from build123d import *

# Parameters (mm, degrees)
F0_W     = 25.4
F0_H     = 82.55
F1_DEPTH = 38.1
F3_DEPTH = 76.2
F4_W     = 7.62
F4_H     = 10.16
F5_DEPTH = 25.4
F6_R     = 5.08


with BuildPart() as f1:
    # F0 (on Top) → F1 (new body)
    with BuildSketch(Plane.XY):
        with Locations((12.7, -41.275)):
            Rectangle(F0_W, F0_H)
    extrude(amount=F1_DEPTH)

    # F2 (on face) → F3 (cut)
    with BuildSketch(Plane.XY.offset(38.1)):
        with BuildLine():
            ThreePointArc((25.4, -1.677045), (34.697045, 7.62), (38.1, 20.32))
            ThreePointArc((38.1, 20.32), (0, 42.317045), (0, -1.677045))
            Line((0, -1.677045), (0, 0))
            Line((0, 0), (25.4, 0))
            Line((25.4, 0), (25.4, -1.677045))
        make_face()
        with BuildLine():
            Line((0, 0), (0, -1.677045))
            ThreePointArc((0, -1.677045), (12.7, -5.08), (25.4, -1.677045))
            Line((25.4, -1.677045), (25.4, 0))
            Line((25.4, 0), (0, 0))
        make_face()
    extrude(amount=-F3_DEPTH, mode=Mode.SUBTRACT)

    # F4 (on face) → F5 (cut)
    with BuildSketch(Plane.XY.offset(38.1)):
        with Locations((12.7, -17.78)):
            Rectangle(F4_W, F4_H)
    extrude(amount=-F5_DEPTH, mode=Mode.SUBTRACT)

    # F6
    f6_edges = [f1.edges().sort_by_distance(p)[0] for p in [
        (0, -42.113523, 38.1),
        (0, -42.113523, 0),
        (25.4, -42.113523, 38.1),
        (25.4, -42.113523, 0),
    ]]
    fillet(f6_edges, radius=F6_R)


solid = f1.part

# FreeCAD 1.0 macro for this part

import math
import FreeCAD as App
import Part
import Sketcher
Q = App.Units.Quantity


def edges_at(feature, points):
    """Names of the edges that pass closest to the given points."""
    edges = feature.Shape.Edges
    near = lambda p: min(range(len(edges)), key=lambda i: edges[i].distToShape(Part.Vertex(*p))[0])
    return sorted({f"Edge{near(p) + 1}" for p in points})

doc = App.newDocument("Part")
body = doc.addObject("PartDesign::Body", "Body")

# Sketch on XY plane
sketch1 = body.newObject("Sketcher::SketchObject", "Sketch")
sketch1.AttachmentSupport = (doc.getObject("XY_Plane"), [""])
sketch1.MapMode = "FlatFace"
sketch1.addGeometry([
    Part.LineSegment(App.Vector(0, 0, 0), App.Vector(0, -82.55, 0)),
    Part.LineSegment(App.Vector(0, -82.55, 0), App.Vector(25.4, -82.55, 0)),
    Part.LineSegment(App.Vector(25.4, -82.55, 0), App.Vector(25.4, 0, 0)),
    Part.LineSegment(App.Vector(25.4, 0, 0), App.Vector(0, 0, 0)),
], False)
sketch1.addConstraint([
    Sketcher.Constraint("Coincident", 0, 2, 1, 1),
    Sketcher.Constraint("Coincident", 1, 2, 2, 1),
    Sketcher.Constraint("Coincident", 2, 2, 3, 1),
    Sketcher.Constraint("Coincident", 3, 2, 0, 1),
    Sketcher.Constraint("Vertical", 0),
    Sketcher.Constraint("Horizontal", 1),
    Sketcher.Constraint("Vertical", 2),
    Sketcher.Constraint("Horizontal", 3),
    Sketcher.Constraint("Coincident", 3, 2, -1, 1),
    Sketcher.Constraint("DistanceX", 1, 1, 1, 2, Q("1 in")),
    Sketcher.Constraint("DistanceY", 0, 2, 0, 1, Q("3.25 in")),
])
pad1 = body.newObject("PartDesign::Pad", "Pad")
pad1.Profile = sketch1
pad1.Length = Q("1.5 in")

# Sketch on XY plane
sketch2 = body.newObject("Sketcher::SketchObject", "Sketch001")
sketch2.AttachmentSupport = (doc.getObject("XY_Plane"), [""])
sketch2.MapMode = "FlatFace"
sketch2.AttachmentOffset = App.Placement(App.Vector(0, 0, 1.5 * 25.4), App.Rotation())
sketch2.addGeometry([
    Part.ArcOfCircle(Part.Circle(App.Vector(12.699999, 20.320001, 0), App.Vector(0, 0, 1), 25.400001), math.radians(-59.999999), math.radians(-0.000001)),
    Part.ArcOfCircle(Part.Circle(App.Vector(12.7, 20.32, 0), App.Vector(0, 0, 1), 25.4), math.radians(0), math.radians(239.999999)),
    Part.ArcOfCircle(Part.Circle(App.Vector(12.7, 20.319998, 0), App.Vector(0, 0, 1), 25.399998), math.radians(-120.000002), math.radians(-59.999998)),
], False)
sketch2.addConstraint([
    Sketcher.Constraint("Tangent", 0, 2, 1, 1),
    Sketcher.Constraint("Tangent", 1, 2, 2, 1),
    Sketcher.Constraint("Tangent", 2, 2, 0, 1),
    Sketcher.Constraint("PointOnObject", 1, 2, -2),
    Sketcher.Constraint("Horizontal", 2, 3, 0, 2),
    Sketcher.Constraint("Horizontal", 1, 2, 2, 2),
    Sketcher.Constraint("Radius", 0, Q("1 in")),
    Sketcher.Constraint("DistanceX", -1, 1, 2, 2, Q("1 in")),
    Sketcher.Constraint("DistanceY", -1, 1, 0, 3, Q("0.8 in")),
])
pocket1 = body.newObject("PartDesign::Pocket", "Pocket")
pocket1.Profile = sketch2
pocket1.Length = Q("3 in")

# Sketch on XY plane
sketch3 = body.newObject("Sketcher::SketchObject", "Sketch002")
sketch3.AttachmentSupport = (doc.getObject("XY_Plane"), [""])
sketch3.MapMode = "FlatFace"
sketch3.AttachmentOffset = App.Placement(App.Vector(0, 0, 1.5 * 25.4), App.Rotation())
sketch3.addGeometry([
    Part.LineSegment(App.Vector(8.89, -12.7, 0), App.Vector(8.89, -22.86, 0)),
    Part.LineSegment(App.Vector(8.89, -22.86, 0), App.Vector(16.51, -22.86, 0)),
    Part.LineSegment(App.Vector(16.51, -22.86, 0), App.Vector(16.51, -12.7, 0)),
    Part.LineSegment(App.Vector(16.51, -12.7, 0), App.Vector(8.89, -12.7, 0)),
], False)
sketch3.addConstraint([
    Sketcher.Constraint("Coincident", 0, 2, 1, 1),
    Sketcher.Constraint("Coincident", 1, 2, 2, 1),
    Sketcher.Constraint("Coincident", 2, 2, 3, 1),
    Sketcher.Constraint("Coincident", 3, 2, 0, 1),
    Sketcher.Constraint("Vertical", 0),
    Sketcher.Constraint("Horizontal", 1),
    Sketcher.Constraint("Vertical", 2),
    Sketcher.Constraint("Horizontal", 3),
    Sketcher.Constraint("DistanceX", 1, 1, 1, 2, Q("0.3 in")),
    Sketcher.Constraint("DistanceY", 0, 2, 0, 1, Q("0.4 in")),
    Sketcher.Constraint("DistanceY", 0, 2, -1, 1, Q("0.9 in")),
    Sketcher.Constraint("DistanceX", -1, 1, 0, 2, Q("0.35 in")),
])
pocket2 = body.newObject("PartDesign::Pocket", "Pocket001")
pocket2.Profile = sketch3
pocket2.Length = Q("1 in")
doc.recompute()

fillet = body.newObject("PartDesign::Fillet", "Fillet")
fillet.Base = (pocket2, edges_at(pocket2, [
    (0, -42.114, 38.1),
    (0, -42.114, 0),
    (25.4, -42.114, 38.1),
    (25.4, -42.114, 0),
]))
fillet.Radius = Q("0.2 in")

doc.recompute()
